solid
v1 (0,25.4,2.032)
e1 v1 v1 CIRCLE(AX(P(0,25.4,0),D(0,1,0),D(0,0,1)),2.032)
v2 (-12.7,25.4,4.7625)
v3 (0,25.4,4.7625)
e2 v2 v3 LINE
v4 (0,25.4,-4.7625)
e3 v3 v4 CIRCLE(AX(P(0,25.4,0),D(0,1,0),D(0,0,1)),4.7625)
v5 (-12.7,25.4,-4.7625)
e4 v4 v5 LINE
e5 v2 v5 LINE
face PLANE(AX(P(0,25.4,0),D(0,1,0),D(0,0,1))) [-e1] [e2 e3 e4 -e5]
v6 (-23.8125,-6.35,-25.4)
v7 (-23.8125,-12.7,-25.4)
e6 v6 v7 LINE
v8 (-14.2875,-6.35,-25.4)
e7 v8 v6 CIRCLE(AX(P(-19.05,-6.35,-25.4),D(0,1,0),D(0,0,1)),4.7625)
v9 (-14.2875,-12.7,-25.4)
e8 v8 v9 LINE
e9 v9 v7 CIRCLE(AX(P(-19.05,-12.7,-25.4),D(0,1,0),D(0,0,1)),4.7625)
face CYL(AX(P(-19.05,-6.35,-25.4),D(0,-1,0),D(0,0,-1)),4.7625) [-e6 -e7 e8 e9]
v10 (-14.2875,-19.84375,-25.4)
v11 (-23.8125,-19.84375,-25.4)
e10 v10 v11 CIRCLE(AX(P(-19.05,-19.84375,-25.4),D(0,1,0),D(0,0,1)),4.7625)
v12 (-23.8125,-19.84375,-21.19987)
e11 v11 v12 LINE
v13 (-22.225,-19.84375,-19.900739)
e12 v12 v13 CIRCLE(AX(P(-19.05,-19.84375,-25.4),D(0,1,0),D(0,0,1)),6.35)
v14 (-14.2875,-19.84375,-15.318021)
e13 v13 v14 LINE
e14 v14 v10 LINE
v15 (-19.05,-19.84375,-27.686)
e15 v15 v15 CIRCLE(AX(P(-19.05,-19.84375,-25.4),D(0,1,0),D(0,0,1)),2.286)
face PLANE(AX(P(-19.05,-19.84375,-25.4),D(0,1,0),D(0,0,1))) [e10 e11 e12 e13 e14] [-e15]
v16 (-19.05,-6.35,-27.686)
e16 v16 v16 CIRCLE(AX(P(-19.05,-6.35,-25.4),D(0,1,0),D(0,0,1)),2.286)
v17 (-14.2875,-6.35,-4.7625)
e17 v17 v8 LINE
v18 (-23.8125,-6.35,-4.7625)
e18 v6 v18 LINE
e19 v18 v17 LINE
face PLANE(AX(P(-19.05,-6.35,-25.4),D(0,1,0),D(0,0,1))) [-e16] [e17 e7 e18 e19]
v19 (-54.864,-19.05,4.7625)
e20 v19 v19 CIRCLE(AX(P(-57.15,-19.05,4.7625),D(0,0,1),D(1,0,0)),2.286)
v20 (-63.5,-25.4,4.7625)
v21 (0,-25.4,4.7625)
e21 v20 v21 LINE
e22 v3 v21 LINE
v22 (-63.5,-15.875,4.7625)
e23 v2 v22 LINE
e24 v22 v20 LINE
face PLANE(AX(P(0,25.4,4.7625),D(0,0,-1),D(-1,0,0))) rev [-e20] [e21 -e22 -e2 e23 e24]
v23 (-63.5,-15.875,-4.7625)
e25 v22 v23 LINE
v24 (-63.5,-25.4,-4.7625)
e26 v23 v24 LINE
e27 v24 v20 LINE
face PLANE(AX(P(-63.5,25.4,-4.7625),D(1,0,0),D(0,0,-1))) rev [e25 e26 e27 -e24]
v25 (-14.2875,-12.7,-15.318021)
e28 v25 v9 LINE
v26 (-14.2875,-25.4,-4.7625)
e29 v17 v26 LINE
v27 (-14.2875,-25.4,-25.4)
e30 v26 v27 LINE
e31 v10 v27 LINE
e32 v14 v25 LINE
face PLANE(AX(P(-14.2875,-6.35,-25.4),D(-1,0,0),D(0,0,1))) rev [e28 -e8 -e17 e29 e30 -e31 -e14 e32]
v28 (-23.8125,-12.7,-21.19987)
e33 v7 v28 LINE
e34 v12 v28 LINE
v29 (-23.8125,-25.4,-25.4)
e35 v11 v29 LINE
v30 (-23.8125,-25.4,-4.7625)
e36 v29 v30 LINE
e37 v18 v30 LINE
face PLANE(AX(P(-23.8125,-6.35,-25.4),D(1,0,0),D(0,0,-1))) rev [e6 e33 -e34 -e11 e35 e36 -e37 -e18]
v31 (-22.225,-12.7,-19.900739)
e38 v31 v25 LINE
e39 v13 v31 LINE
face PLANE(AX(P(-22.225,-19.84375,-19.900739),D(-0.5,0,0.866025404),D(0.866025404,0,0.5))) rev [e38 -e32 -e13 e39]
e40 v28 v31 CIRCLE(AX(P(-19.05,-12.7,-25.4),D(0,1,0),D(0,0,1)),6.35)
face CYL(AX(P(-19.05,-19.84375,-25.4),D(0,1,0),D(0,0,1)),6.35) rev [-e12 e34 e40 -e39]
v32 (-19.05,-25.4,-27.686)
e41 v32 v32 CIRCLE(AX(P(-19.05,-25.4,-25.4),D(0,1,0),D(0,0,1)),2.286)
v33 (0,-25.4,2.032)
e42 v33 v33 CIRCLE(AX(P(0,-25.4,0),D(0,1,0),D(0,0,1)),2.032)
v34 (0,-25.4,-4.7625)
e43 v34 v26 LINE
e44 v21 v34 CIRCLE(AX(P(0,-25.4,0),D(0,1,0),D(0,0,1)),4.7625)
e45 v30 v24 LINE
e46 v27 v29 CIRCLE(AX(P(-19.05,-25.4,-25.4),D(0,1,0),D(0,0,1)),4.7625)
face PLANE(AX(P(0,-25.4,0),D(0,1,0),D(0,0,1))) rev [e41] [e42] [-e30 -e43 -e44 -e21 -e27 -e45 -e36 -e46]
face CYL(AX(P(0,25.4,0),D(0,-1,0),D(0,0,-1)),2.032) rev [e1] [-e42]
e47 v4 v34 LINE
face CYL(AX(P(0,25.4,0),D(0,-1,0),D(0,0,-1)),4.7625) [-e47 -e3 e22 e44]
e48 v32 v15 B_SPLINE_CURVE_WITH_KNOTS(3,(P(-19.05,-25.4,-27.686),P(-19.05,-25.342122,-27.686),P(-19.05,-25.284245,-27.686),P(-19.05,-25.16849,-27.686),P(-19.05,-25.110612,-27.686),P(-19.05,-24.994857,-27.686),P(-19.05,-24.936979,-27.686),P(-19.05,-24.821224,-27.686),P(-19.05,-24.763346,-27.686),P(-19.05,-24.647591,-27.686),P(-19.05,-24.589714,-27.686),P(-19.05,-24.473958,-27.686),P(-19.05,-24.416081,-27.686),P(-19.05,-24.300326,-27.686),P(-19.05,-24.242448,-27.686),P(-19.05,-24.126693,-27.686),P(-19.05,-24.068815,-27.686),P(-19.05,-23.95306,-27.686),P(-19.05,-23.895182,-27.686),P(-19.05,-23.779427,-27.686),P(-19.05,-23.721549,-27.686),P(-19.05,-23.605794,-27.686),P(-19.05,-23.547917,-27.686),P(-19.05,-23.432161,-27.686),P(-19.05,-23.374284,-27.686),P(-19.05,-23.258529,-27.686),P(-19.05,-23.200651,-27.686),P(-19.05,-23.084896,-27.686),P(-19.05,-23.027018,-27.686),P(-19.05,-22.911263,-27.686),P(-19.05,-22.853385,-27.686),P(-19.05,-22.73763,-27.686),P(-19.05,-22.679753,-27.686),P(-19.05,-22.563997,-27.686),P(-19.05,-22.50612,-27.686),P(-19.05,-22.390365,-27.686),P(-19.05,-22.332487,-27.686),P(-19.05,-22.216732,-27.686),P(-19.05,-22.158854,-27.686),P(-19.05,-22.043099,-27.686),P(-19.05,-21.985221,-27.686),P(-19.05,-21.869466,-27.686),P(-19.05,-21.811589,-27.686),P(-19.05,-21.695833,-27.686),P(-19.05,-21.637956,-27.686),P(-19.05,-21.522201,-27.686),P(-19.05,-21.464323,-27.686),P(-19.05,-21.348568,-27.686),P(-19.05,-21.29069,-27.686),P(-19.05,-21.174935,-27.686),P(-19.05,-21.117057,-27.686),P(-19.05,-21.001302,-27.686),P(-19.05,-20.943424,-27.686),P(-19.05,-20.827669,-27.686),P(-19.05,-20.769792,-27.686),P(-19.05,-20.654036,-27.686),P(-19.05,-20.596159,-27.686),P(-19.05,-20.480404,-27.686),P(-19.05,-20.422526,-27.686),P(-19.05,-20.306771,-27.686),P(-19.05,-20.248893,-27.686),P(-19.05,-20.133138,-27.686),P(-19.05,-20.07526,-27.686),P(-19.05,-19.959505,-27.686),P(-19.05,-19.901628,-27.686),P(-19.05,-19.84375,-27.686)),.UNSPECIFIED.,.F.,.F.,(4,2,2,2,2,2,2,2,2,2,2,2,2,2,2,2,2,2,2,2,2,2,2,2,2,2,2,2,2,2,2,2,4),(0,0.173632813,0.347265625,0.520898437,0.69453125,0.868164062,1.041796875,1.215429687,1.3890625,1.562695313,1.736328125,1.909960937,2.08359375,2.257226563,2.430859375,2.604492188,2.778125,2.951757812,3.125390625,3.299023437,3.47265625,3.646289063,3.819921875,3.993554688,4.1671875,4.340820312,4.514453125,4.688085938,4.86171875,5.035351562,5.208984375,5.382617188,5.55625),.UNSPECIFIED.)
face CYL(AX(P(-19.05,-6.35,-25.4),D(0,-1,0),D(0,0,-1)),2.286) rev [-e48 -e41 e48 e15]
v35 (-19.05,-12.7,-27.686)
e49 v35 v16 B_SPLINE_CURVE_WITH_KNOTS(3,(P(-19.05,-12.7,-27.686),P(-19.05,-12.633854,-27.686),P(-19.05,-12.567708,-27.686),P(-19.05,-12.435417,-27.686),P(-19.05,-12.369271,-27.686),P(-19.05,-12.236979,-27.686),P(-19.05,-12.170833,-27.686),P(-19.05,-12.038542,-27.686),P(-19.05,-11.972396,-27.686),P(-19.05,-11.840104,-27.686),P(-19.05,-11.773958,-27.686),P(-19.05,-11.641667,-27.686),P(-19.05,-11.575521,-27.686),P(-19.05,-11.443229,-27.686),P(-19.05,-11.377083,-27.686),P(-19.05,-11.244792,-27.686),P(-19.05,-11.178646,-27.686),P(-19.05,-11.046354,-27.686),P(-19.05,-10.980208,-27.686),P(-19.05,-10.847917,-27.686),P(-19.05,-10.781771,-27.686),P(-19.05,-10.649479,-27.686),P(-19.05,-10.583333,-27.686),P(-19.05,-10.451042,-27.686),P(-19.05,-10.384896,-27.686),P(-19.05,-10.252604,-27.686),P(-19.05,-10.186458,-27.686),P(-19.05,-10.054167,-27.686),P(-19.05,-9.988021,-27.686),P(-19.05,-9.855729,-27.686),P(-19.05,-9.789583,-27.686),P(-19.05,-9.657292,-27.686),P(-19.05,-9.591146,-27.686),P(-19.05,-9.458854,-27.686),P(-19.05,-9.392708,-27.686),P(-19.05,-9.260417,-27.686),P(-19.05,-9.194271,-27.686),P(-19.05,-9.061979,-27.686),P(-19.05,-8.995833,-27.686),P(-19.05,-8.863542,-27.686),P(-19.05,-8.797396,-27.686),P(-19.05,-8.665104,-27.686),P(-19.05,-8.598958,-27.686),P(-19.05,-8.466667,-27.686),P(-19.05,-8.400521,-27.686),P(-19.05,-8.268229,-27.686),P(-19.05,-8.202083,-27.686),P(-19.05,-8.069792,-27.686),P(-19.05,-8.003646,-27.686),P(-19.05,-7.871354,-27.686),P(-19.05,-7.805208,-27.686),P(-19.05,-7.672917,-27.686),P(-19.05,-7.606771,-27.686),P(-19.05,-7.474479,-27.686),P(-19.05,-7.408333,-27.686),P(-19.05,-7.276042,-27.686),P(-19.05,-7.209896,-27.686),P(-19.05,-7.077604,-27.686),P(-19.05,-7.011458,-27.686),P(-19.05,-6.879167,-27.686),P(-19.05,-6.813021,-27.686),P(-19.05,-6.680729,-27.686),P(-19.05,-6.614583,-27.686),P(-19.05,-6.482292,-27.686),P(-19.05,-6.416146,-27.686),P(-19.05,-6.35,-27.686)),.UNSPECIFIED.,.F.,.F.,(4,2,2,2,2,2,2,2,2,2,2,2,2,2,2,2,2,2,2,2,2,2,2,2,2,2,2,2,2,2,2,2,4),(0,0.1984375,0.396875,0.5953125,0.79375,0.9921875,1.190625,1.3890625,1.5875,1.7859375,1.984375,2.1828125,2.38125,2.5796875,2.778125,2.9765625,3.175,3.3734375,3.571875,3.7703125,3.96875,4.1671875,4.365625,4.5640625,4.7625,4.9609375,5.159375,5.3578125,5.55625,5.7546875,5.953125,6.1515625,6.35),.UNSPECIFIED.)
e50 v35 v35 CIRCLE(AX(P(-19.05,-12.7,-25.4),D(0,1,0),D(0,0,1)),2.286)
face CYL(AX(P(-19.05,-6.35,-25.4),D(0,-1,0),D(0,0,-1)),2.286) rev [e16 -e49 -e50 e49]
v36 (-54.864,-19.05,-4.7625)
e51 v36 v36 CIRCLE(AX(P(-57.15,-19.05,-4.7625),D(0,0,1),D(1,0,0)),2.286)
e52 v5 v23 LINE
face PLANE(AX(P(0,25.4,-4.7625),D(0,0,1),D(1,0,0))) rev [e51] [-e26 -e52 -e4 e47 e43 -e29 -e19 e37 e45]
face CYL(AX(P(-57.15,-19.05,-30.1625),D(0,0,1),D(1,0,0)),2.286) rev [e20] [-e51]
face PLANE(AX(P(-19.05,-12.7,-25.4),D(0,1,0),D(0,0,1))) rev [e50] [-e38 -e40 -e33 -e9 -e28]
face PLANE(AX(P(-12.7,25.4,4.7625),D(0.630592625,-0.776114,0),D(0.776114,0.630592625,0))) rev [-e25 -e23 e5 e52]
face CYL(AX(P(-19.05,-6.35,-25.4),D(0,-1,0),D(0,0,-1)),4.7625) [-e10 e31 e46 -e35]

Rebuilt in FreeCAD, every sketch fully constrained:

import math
import FreeCAD as App
import Part
import Sketcher

V = App.Vector
Q = App.Units.Quantity


def add_polygon(sketch, points):
    """Adds a closed chain of lines whose ends are joined by coincident constraints."""
    first, n = sketch.GeometryCount, len(points)
    for a, b in zip(points, points[1:] + points[:1]):
        sketch.addGeometry(Part.LineSegment(App.Vector(*a, 0), App.Vector(*b, 0)), False)
    for i in range(n):
        sketch.addConstraint(Sketcher.Constraint("Coincident", first + i, 2, first + (i + 1) % n, 1))

doc = App.newDocument("Part")
body = doc.addObject("PartDesign::Body", "Body")

sketch1 = body.newObject("Sketcher::SketchObject", "Sketch")
sketch1.AttachmentSupport = (doc.getObject("XZ_Plane"), [""])
sketch1.MapMode = "FlatFace"
sketch1.addGeometry([
    Part.LineSegment(V(0, -4.8, 0), V(-63.5, -4.8, 0)),
    Part.LineSegment(V(-63.5, -4.8, 0), V(-63.5, 4.8, 0)),
    Part.LineSegment(V(-63.5, 4.8, 0), V(0, 4.8, 0)),
    Part.ArcOfCircle(Part.Circle(V(0, 0, 0), V(0, 0, 1), 4.8), math.radians(-90), math.radians(90)),
    Part.Circle(V(0, 0, 0), V(0, 0, 1), 2),
], False)
sketch1.addConstraint([
    Sketcher.Constraint("Coincident", 0, 2, 1, 1),
    Sketcher.Constraint("Coincident", 1, 2, 2, 1),
    Sketcher.Constraint("Tangent", 2, 2, 3, 2),
    Sketcher.Constraint("Tangent", 3, 1, 0, 1),
    Sketcher.Constraint("Horizontal", 0),
    Sketcher.Constraint("Vertical", 1),
    Sketcher.Constraint("Horizontal", 2),
    Sketcher.Constraint("Coincident", 3, 3, -1, 1),
    Sketcher.Constraint("Coincident", 4, 3, -1, 1),
    Sketcher.Constraint("Diameter", 4, Q("0.16 in")),
    Sketcher.Constraint("DistanceX", 0, 2, 0, 1, Q("2.5 in")),
    Sketcher.Constraint("Radius", 3, Q("0.1875 in")),
])
pad1 = body.newObject("PartDesign::Pad", "Pad")
pad1.Profile = sketch1
pad1.Length = Q("2 in")
pad1.Midplane = True

sketch2 = body.newObject("Sketcher::SketchObject", "Sketch001")
sketch2.AttachmentSupport = (doc.getObject("XZ_Plane"), [""])
sketch2.MapMode = "FlatFace"
sketch2.AttachmentOffset = App.Placement(V(0, 0, 1 * 25.4), App.Rotation())
sketch2.addGeometry([
    Part.LineSegment(V(-23.8, -25.4, 0), V(-23.8, -4.8, 0)),
    Part.LineSegment(V(-23.8, -4.8, 0), V(-14.3, -4.8, 0)),
    Part.LineSegment(V(-14.3, -4.8, 0), V(-14.3, -25.4, 0)),
    Part.ArcOfCircle(Part.Circle(V(-19.1, -25.4, 0), V(0, 0, 1), 4.8), math.radians(180), math.radians(360)),
    Part.Circle(V(-19.1, -25.4, 0), V(0, 0, 1), 2.3),
], False)
sketch2.addConstraint([
    Sketcher.Constraint("Coincident", 0, 2, 1, 1),
    Sketcher.Constraint("Coincident", 1, 2, 2, 1),
    Sketcher.Constraint("Tangent", 2, 2, 3, 2),
    Sketcher.Constraint("Tangent", 3, 1, 0, 1),
    Sketcher.Constraint("Vertical", 0),
    Sketcher.Constraint("Horizontal", 1),
    Sketcher.Constraint("Vertical", 2),
    Sketcher.Constraint("Coincident", 4, 3, 3, 3),
    Sketcher.Constraint("Diameter", 4, Q("0.18 in")),
    Sketcher.Constraint("DistanceY", 3, 3, -1, 1, Q("1 in")),
    Sketcher.Constraint("Radius", 3, Q("0.1875 in")),
    Sketcher.Constraint("DistanceY", 0, 1, 0, 2, Q("0.8125 in")),
    Sketcher.Constraint("DistanceX", 3, 3, -1, 1, Q("0.75 in")),
])
pad2 = body.newObject("PartDesign::Pad", "Pad001")
pad2.Profile = sketch2
pad2.Length = Q("0.75 in")
pad2.Reversed = True

sketch3 = body.newObject("Sketcher::SketchObject", "Sketch002")
sketch3.AttachmentSupport = (doc.getObject("XY_Plane"), [""])
sketch3.MapMode = "FlatFace"
sketch3.AttachmentOffset = App.Placement(V(0, 0, 0.1875 * 25.4), App.Rotation())
sketch3.addGeometry(Part.Circle(V(-57.1, -19.1, 0), V(0, 0, 1), 2.3), False)
sketch3.addConstraint([
    Sketcher.Constraint("Diameter", 0, Q("0.18 in")),
    Sketcher.Constraint("DistanceX", 0, 3, -1, 1, Q("2.25 in")),
    Sketcher.Constraint("DistanceY", 0, 3, -1, 1, Q("0.75 in")),
])
pocket1 = body.newObject("PartDesign::Pocket", "Pocket")
pocket1.Profile = sketch3
pocket1.Type = "ThroughAll"

sketch4 = body.newObject("Sketcher::SketchObject", "Sketch003")
sketch4.AttachmentSupport = (doc.getObject("XZ_Plane"), [""])
sketch4.MapMode = "FlatFace"
sketch4.AttachmentOffset = App.Placement(V(0, 0, 0.78125 * 25.4), App.Rotation())
sketch4.addGeometry([
    Part.LineSegment(V(-22.2, -19.9, 0), V(-14.3, -15.3, 0)),
    Part.LineSegment(V(-14.3, -15.3, 0), V(-14.3, -25.4, 0)),
    Part.ArcOfCircle(Part.Circle(V(-19.1, -25.4, 0), V(0, 0, 1), 4.8), math.radians(180), math.radians(360)),
    Part.LineSegment(V(-23.8, -25.4, 0), V(-23.8, -21.2, 0)),
    Part.ArcOfCircle(Part.Circle(V(-19, -25.4, 0), V(0, 0, 1), 6.4), math.radians(120), math.radians(138.59)),
], False)
sketch4.addConstraint([
    Sketcher.Constraint("Coincident", 0, 2, 1, 1),
    Sketcher.Constraint("Tangent", 1, 2, 2, 2),
    Sketcher.Constraint("Tangent", 2, 1, 3, 1),
    Sketcher.Constraint("Coincident", 3, 2, 4, 2),
    Sketcher.Constraint("Tangent", 4, 1, 0, 1),
    Sketcher.Constraint("Vertical", 1),
    Sketcher.Constraint("Vertical", 3),
    Sketcher.Constraint("Coincident", 4, 3, 2, 3),
    Sketcher.Constraint("Radius", 4, Q("0.25 in")),
    Sketcher.Constraint("DistanceY", 2, 3, -1, 1, Q("1 in")),
    Sketcher.Constraint("Angle", 0, Q("30 deg")),
    Sketcher.Constraint("Radius", 2, Q("0.1875 in")),
    Sketcher.Constraint("DistanceX", 2, 3, -1, 1, Q("0.75 in")),
])
pocket2 = body.newObject("PartDesign::Pocket", "Pocket001")
pocket2.Profile = sketch4
pocket2.Length = Q("0.28125 in")

sketch5 = body.newObject("Sketcher::SketchObject", "Sketch004")
sketch5.AttachmentSupport = (doc.getObject("XY_Plane"), [""])
sketch5.MapMode = "FlatFace"
sketch5.AttachmentOffset = App.Placement(V(0, 0, -0.1875 * 25.4), App.Rotation())
add_polygon(sketch5, [(-13, 25), (-64, -16), (-64, 25)])
sketch5.addConstraint([
    Sketcher.Constraint("Vertical", 1),
    Sketcher.Constraint("Horizontal", 2),
    Sketcher.Constraint("DistanceX", 2, 1, 2, 2, Q("2 in")),
    Sketcher.Constraint("DistanceY", -1, 1, 1, 2, Q("1 in")),
    Sketcher.Constraint("DistanceX", 0, 2, -1, 1, Q("2.5 in")),
    Sketcher.Constraint("DistanceY", 1, 1, 1, 2, Q("1.625 in")),
])
pocket3 = body.newObject("PartDesign::Pocket", "Pocket002")
pocket3.Profile = sketch5
pocket3.Type = "ThroughAll"
pocket3.Reversed = True

doc.recompute()
